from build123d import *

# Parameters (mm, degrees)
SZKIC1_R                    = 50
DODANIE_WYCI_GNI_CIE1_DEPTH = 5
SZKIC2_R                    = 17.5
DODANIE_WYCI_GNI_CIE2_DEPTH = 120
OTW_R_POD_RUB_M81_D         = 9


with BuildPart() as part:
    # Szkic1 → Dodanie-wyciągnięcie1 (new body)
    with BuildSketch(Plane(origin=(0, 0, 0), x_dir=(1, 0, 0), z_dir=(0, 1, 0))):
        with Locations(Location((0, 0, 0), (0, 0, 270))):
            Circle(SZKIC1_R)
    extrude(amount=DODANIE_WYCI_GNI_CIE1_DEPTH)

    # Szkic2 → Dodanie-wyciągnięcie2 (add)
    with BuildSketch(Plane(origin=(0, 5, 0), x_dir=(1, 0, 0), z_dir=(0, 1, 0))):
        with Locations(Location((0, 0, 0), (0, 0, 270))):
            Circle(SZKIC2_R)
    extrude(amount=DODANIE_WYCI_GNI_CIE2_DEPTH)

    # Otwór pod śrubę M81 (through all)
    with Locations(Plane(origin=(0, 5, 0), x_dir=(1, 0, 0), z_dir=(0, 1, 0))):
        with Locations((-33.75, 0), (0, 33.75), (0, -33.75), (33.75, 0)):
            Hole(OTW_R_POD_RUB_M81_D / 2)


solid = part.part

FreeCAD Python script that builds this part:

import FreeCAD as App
import Part
import Sketcher
from FreeCAD import Vector

doc = App.newDocument("Part")
params = doc.addObject("Spreadsheet::Sheet", "Params")
for row, (alias, value) in enumerate([
    ("sketch1_diameter", "100 mm"),
    ("pad1_length", "5 mm"),
    ("sketch2_diameter", "35 mm"),
    ("pad2_length", "120 mm"),
    ("sketch3_diameter", "9 mm"),
    ("hole_diameter", "9 mm"),
], start=1):
    params.set(f"A{row}", alias)
    params.set(f"B{row}", "=" + value)
    params.setAlias(f"B{row}", alias)

body = doc.addObject("PartDesign::Body", "Body")

sketch1 = body.newObject("Sketcher::SketchObject", "Sketch")
sketch1.AttachmentSupport = (doc.getObject("XZ_Plane"), [""])
sketch1.MapMode = "FlatFace"
sketch1.addGeometry(Part.Circle(Vector(0, 0, 0), Vector(0, 0, 1), 50), False)
sketch1.addConstraint([
    Sketcher.Constraint("Coincident", 0, 3, -1, 1),
    Sketcher.Constraint("Diameter", 0, 100.0),
])
sketch1.setExpression("Constraints[1]", "Params.sketch1_diameter")
pad1 = body.newObject("PartDesign::Pad", "Pad")
pad1.Profile = sketch1
pad1.setExpression("Length", "Params.pad1_length")
pad1.Reversed = True

sketch2 = body.newObject("Sketcher::SketchObject", "Sketch001")
sketch2.AttachmentSupport = (doc.getObject("XZ_Plane"), [""])
sketch2.MapMode = "FlatFace"
sketch2.AttachmentOffset = App.Placement(Vector(0, 0, -5), App.Rotation())
sketch2.addGeometry(Part.Circle(Vector(0, 0, 0), Vector(0, 0, 1), 18), False)
sketch2.addConstraint([
    Sketcher.Constraint("Coincident", 0, 3, -1, 1),
    Sketcher.Constraint("Diameter", 0, 35.0),
])
sketch2.setExpression("Constraints[1]", "Params.sketch2_diameter")
pad2 = body.newObject("PartDesign::Pad", "Pad001")
pad2.Profile = sketch2
pad2.setExpression("Length", "Params.pad2_length")
pad2.Reversed = True

sketch3 = body.newObject("Sketcher::SketchObject", "Sketch002")
sketch3.AttachmentSupport = (doc.getObject("XZ_Plane"), [""])
sketch3.MapMode = "FlatFace"
sketch3.AttachmentOffset = App.Placement(Vector(0, 0, -5), App.Rotation())
sketch3.addGeometry([
    Part.Circle(Vector(-33.8, 0, 0), Vector(0, 0, 1), 4.5),
    Part.Circle(Vector(0, -33.8, 0), Vector(0, 0, 1), 4.5),
    Part.Circle(Vector(0, 33.8, 0), Vector(0, 0, 1), 4.5),
    Part.Circle(Vector(33.8, 0, 0), Vector(0, 0, 1), 4.5),
], False)
sketch3.addConstraint([
    Sketcher.Constraint("Equal", 0, 1),
    Sketcher.Constraint("Equal", 1, 2),
    Sketcher.Constraint("Equal", 2, 3),
    Sketcher.Constraint("Symmetric", 1, 3, 2, 3, -1, 1),
    Sketcher.Constraint("Symmetric", 0, 3, 3, 3, -1, 1),
    Sketcher.Constraint("PointOnObject", 0, 3, -1),
    Sketcher.Constraint("PointOnObject", 1, 3, -2),
    Sketcher.Constraint("Diameter", 0, 9.0),
    Sketcher.Constraint("DistanceY", 1, 3, 2, 3, 67.5),
    Sketcher.Constraint("DistanceX", 0, 3, 3, 3, 67.5),
])
sketch3.setExpression("Constraints[7]", "Params.sketch3_diameter")
doc.recompute()
hole = body.newObject("PartDesign::Hole", "Hole")
hole.Profile = sketch3
hole.ThreadType = "None"
hole.setExpression("Diameter", "Params.hole_diameter")
hole.DepthType = "ThroughAll"
hole.Reversed = True

doc.recompute()
